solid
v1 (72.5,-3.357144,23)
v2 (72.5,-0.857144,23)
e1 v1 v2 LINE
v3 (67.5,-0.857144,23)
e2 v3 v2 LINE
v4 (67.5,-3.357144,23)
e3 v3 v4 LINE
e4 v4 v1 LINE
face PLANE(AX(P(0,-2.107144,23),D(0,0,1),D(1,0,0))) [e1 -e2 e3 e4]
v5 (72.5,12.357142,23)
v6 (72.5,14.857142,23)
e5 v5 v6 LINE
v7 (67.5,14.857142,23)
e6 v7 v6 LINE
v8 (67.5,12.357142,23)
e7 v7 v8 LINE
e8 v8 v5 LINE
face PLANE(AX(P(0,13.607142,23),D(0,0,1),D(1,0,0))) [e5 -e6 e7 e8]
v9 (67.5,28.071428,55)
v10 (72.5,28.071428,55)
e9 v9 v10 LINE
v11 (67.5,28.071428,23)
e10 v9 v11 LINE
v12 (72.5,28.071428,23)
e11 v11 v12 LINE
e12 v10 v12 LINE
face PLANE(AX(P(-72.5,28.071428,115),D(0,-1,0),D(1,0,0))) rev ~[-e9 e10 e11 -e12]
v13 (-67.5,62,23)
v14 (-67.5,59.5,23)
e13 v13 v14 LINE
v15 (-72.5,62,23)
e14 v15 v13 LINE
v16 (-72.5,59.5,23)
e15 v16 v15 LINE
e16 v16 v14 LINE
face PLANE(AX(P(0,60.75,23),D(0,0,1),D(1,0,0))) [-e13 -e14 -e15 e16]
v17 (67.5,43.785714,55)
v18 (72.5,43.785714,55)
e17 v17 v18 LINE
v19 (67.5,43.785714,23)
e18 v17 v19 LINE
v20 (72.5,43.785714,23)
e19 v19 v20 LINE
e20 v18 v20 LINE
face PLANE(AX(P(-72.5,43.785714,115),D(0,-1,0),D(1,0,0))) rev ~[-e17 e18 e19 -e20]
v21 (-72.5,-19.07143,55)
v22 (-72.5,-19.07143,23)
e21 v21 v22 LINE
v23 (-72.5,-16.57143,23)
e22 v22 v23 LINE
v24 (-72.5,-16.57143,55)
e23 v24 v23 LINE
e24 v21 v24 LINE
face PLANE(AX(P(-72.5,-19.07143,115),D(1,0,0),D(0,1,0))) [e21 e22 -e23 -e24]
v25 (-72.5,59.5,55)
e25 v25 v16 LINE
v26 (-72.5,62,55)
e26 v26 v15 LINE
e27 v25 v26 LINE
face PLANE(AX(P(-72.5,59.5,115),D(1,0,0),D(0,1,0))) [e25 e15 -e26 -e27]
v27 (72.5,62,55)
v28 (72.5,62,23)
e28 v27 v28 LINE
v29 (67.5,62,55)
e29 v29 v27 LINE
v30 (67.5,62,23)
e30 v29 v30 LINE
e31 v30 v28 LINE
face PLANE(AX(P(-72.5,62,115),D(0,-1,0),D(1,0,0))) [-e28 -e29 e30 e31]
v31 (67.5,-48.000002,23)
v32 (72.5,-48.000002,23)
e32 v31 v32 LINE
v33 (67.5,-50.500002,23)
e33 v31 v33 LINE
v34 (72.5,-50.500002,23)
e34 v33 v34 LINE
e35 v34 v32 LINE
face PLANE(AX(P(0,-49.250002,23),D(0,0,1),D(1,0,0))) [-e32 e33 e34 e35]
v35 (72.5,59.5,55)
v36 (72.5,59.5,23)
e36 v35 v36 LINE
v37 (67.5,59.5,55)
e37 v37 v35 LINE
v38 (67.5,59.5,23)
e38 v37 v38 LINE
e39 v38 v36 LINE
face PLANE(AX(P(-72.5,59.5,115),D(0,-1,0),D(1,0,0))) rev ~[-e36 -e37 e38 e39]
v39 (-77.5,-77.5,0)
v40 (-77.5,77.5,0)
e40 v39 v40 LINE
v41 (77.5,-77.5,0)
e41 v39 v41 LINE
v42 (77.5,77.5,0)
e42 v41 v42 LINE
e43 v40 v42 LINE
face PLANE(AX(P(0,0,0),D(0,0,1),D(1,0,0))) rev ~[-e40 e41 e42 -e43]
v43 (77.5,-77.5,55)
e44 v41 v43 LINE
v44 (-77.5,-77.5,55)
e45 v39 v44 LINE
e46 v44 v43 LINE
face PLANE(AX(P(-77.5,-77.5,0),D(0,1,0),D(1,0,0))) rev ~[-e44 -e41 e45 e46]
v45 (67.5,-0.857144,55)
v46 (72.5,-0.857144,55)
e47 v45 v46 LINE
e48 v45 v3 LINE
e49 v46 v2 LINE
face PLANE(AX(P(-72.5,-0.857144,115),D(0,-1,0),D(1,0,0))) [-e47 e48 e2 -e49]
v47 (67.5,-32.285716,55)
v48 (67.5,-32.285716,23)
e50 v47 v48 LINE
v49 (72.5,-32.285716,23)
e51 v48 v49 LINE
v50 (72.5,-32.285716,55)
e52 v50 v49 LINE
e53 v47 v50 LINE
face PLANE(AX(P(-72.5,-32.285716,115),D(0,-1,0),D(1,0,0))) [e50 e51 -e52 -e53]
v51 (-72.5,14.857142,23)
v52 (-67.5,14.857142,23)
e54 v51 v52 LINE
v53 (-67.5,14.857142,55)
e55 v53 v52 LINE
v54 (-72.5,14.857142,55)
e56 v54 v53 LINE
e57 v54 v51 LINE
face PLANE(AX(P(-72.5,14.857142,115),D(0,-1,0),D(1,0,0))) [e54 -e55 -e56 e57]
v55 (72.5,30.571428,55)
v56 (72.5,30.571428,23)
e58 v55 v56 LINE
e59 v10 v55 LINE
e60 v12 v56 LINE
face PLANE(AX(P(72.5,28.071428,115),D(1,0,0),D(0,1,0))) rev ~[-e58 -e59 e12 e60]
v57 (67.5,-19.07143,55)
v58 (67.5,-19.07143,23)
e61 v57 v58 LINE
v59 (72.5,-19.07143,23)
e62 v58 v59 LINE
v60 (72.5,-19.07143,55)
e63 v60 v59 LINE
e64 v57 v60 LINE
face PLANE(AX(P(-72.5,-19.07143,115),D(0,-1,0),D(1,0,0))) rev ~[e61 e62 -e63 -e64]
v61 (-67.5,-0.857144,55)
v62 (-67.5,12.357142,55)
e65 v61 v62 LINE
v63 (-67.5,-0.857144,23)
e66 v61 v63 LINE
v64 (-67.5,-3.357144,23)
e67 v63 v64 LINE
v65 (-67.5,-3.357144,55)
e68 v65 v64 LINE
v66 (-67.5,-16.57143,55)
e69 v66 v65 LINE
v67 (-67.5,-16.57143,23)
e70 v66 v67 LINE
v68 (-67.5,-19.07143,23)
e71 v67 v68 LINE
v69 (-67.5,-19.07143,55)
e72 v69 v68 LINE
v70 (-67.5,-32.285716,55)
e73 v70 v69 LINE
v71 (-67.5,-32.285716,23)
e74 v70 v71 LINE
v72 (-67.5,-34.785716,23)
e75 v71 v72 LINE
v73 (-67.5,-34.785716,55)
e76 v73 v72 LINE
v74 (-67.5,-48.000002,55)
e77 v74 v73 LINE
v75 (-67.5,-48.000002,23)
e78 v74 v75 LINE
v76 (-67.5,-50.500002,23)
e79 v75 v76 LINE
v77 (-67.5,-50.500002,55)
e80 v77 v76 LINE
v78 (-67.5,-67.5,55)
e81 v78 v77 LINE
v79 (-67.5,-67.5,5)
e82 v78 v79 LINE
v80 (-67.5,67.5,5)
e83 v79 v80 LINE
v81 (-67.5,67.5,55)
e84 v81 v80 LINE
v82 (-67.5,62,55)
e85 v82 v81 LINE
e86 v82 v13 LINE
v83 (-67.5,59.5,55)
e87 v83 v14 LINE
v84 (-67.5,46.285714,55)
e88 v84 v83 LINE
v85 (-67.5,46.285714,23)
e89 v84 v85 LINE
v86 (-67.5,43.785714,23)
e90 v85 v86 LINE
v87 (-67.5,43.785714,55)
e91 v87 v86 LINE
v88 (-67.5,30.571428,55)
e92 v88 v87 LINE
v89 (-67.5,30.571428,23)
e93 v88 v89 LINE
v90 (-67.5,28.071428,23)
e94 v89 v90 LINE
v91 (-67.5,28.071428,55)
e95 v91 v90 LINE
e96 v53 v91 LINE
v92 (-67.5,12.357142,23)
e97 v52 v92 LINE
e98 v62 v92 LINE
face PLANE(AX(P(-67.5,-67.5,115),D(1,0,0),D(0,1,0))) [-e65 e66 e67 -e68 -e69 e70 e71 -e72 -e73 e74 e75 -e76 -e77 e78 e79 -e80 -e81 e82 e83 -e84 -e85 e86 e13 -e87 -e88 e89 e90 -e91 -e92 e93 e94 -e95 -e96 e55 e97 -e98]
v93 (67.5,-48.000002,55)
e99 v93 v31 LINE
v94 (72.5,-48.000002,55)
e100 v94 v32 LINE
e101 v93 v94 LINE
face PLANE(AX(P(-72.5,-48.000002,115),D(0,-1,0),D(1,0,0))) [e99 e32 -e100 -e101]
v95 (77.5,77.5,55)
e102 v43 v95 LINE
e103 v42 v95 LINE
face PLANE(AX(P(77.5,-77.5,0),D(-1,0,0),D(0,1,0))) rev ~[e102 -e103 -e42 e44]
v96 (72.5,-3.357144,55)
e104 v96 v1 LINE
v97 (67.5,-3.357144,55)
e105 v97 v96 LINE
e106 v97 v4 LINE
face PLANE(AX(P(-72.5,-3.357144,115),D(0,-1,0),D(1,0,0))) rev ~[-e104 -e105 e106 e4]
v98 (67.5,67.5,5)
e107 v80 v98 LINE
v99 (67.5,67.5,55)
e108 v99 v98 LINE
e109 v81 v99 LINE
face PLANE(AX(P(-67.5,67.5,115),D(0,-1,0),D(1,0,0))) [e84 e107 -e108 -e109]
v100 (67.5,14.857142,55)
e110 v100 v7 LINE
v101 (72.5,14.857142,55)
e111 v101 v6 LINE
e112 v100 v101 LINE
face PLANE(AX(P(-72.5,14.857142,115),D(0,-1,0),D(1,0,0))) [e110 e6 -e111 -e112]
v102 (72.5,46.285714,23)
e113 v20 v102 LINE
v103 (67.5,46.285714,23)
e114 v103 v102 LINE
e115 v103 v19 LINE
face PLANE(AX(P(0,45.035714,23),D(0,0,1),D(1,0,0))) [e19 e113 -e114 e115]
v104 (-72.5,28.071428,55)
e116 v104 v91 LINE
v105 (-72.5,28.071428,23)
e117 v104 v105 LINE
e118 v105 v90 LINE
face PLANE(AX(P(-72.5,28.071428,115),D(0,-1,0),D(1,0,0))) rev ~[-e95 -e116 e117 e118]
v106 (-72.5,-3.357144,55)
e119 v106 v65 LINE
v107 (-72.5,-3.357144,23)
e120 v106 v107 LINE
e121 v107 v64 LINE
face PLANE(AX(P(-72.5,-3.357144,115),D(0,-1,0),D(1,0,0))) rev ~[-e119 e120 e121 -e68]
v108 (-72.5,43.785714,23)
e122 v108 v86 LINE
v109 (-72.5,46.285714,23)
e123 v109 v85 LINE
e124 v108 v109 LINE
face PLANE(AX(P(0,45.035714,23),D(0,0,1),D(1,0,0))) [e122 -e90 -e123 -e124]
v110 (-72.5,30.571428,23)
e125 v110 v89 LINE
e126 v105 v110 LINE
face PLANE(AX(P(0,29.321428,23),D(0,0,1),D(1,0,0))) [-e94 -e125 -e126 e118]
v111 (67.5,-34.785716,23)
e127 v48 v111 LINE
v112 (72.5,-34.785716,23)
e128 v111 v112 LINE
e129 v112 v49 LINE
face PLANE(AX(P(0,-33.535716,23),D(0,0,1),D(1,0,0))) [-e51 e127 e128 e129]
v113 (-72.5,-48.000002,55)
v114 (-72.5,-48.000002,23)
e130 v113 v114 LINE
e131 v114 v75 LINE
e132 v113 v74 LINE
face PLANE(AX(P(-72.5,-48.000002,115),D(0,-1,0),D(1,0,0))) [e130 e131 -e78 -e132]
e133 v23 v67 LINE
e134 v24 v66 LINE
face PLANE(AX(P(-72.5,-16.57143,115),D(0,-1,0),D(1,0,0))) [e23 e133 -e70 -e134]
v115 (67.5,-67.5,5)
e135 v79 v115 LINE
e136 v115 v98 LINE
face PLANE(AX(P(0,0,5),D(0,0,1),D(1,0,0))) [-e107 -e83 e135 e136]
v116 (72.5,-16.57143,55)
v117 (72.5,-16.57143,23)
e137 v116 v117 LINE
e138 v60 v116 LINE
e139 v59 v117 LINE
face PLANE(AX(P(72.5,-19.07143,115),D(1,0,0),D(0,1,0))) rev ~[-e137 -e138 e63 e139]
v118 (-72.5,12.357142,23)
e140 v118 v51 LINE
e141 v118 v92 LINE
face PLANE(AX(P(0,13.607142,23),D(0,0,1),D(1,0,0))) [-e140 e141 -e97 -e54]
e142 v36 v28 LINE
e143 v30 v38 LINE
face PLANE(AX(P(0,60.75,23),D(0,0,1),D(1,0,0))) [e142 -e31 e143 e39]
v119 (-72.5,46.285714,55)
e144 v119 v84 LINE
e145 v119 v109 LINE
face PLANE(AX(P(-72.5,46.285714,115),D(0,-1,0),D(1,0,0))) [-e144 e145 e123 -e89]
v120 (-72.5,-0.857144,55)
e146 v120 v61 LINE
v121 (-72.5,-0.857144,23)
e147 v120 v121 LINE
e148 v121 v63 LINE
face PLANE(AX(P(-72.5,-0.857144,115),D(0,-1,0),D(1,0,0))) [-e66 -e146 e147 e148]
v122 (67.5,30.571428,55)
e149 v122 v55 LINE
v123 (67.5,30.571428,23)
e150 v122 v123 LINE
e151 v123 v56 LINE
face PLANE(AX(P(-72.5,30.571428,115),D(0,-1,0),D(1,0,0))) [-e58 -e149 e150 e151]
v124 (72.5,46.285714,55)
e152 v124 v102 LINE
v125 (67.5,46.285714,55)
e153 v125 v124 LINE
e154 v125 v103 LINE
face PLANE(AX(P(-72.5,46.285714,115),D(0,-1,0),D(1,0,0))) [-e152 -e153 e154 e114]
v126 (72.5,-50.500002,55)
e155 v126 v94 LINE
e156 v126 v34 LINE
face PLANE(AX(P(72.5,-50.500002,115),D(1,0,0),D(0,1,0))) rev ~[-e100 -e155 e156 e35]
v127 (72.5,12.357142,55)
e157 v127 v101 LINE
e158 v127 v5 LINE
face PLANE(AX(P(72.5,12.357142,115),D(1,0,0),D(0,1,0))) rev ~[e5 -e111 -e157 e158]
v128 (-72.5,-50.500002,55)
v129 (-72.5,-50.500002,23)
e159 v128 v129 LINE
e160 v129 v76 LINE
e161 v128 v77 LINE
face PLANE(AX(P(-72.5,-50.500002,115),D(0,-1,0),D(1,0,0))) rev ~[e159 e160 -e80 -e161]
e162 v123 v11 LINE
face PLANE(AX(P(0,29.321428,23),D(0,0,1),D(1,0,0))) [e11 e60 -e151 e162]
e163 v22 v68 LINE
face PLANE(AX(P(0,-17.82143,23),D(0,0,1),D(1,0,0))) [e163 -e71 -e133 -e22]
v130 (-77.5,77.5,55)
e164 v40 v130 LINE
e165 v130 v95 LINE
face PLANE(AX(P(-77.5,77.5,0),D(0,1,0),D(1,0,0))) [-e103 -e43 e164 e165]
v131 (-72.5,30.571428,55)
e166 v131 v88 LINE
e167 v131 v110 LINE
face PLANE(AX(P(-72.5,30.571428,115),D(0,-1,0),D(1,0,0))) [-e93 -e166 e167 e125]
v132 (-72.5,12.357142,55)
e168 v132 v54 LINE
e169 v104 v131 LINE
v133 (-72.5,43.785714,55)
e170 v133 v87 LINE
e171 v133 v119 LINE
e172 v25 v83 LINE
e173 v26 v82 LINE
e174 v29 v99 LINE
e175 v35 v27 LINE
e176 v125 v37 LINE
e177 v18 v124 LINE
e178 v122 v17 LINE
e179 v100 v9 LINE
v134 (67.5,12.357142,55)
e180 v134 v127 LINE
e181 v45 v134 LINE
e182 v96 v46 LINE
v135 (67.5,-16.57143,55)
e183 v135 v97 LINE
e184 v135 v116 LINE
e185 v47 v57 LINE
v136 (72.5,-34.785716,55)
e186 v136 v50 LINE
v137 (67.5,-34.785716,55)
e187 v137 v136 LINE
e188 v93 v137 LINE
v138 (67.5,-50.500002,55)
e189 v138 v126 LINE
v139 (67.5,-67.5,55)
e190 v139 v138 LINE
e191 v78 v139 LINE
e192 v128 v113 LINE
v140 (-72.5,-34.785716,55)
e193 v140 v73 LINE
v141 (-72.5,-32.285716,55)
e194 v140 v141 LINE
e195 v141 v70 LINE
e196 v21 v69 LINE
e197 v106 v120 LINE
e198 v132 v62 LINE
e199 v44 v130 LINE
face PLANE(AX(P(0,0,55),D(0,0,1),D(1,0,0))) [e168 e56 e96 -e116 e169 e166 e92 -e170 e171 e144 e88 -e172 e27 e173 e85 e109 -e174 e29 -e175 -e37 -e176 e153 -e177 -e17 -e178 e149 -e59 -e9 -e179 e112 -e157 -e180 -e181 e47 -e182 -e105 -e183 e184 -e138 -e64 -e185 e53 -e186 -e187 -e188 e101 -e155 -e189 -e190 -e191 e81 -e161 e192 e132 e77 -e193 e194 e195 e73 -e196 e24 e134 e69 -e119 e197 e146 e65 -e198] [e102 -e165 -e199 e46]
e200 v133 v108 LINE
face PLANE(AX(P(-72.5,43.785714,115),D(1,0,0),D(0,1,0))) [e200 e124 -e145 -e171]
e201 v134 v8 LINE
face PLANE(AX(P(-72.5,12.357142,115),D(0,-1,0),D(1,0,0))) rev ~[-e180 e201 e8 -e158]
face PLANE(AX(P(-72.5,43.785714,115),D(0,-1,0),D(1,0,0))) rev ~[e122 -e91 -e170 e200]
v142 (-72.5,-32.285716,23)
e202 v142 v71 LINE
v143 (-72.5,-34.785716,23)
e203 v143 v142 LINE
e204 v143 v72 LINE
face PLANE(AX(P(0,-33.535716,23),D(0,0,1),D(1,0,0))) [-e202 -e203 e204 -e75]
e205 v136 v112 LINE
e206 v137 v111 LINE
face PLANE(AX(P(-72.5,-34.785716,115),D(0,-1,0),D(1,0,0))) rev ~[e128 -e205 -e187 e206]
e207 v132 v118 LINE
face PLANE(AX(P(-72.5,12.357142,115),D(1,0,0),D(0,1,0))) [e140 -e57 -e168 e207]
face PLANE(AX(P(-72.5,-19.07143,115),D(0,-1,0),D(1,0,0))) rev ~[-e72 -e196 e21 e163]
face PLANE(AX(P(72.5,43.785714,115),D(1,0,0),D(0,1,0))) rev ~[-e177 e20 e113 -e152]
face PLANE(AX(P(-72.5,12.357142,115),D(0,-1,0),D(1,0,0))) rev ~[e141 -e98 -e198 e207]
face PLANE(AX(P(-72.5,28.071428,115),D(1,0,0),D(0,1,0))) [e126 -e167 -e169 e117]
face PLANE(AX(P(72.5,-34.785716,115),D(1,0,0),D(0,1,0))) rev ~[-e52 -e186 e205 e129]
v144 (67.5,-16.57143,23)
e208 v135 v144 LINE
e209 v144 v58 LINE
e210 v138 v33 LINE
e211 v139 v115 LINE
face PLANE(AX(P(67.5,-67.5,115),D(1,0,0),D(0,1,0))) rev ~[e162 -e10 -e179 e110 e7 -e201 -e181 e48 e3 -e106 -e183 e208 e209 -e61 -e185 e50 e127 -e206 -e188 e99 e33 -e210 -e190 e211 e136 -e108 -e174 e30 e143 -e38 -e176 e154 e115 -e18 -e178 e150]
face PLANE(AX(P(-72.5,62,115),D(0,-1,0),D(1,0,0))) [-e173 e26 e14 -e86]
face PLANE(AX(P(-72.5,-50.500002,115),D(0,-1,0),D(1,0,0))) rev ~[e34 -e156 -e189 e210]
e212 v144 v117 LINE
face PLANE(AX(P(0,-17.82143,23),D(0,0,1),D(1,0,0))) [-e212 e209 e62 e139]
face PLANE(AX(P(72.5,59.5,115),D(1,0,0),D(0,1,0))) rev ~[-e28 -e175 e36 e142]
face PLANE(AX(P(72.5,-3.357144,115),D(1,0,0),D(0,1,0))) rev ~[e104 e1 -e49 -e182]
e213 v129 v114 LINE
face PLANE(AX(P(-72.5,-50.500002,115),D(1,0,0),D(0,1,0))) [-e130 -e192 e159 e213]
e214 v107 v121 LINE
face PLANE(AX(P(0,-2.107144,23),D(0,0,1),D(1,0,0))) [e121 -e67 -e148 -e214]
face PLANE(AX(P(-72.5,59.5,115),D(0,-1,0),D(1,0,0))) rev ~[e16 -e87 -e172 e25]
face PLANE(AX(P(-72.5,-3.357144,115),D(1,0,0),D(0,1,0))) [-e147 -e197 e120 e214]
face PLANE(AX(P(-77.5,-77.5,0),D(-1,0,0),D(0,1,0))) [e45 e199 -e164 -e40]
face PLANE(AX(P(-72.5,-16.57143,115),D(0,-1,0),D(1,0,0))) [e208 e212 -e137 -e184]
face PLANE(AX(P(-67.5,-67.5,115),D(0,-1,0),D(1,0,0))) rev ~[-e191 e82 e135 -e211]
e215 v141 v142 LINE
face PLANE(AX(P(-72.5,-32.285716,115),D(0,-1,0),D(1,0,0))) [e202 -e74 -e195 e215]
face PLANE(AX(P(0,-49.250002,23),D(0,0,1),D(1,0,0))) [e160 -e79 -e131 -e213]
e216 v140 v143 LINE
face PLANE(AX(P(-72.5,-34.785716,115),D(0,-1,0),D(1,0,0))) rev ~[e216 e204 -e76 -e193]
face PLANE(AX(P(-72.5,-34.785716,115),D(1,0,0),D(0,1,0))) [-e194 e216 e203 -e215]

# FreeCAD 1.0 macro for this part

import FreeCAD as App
import Part
import Sketcher
Q = App.Units.Quantity


def add_polygon(sketch, points):
    """Adds a closed chain of lines whose ends are joined by coincident constraints."""
    first, n = sketch.GeometryCount, len(points)
    for a, b in zip(points, points[1:] + points[:1]):
        sketch.addGeometry(Part.LineSegment(App.Vector(*a, 0), App.Vector(*b, 0)), False)
    for i in range(n):
        sketch.addConstraint(Sketcher.Constraint("Coincident", first + i, 2, first + (i + 1) % n, 1))

doc = App.newDocument("Part")
params = doc.addObject("Spreadsheet::Sheet", "Params")
for row, (alias, value) in enumerate([
    ("sketch1_width", "155 mm"),
    ("pad1_length", "55 mm"),
    ("sketch2_width", "135 mm"),
    ("pocket1_length", "110 mm"),
    ("sketch3_width", "145 mm"),
    ("sketch3_height", "2.5 mm"),
    ("pocket2_length", "92 mm"),
    ("linearpattern_pitch", "15.714286 mm"),
], start=1):
    params.set(f"A{row}", alias)
    params.set(f"B{row}", "=" + value)
    params.setAlias(f"B{row}", alias)

body = doc.addObject("PartDesign::Body", "Body")

# Sketch on XY plane
sketch1 = body.newObject("Sketcher::SketchObject", "Sketch")
sketch1.AttachmentSupport = (doc.getObject("XY_Plane"), [""])
sketch1.MapMode = "FlatFace"
add_polygon(sketch1, [(-78, 78), (-78, -78), (78, -78), (78, 78)])  # lines 0-3
sketch1.addConstraint([
    Sketcher.Constraint("Vertical", 0),
    Sketcher.Constraint("Horizontal", 1),
    Sketcher.Constraint("Vertical", 2),
    Sketcher.Constraint("Horizontal", 3),
    Sketcher.Constraint("Symmetric", 0, 2, 2, 2, -1, 1),
    Sketcher.Constraint("Equal", 3, 0),
    Sketcher.Constraint("DistanceX", 1, 1, 1, 2, Q("155 mm")),
])
sketch1.setExpression("Constraints[10]", "Params.sketch1_width")
pad1 = body.newObject("PartDesign::Pad", "Pad")
pad1.Profile = sketch1
pad1.setExpression("Length", "Params.pad1_length")

# Sketch on XY plane
sketch2 = body.newObject("Sketcher::SketchObject", "Sketch001")
sketch2.AttachmentSupport = (doc.getObject("XY_Plane"), [""])
sketch2.MapMode = "FlatFace"
sketch2.AttachmentOffset = App.Placement(App.Vector(0, 0, 115), App.Rotation())
add_polygon(sketch2, [(-68, 68), (-68, -68), (68, -68), (68, 68)])  # lines 0-3
sketch2.addConstraint([
    Sketcher.Constraint("Vertical", 0),
    Sketcher.Constraint("Horizontal", 1),
    Sketcher.Constraint("Vertical", 2),
    Sketcher.Constraint("Horizontal", 3),
    Sketcher.Constraint("Symmetric", 0, 2, 2, 2, -1, 1),
    Sketcher.Constraint("Equal", 3, 0),
    Sketcher.Constraint("DistanceX", 1, 1, 1, 2, Q("135 mm")),
])
sketch2.setExpression("Constraints[10]", "Params.sketch2_width")
pocket1 = body.newObject("PartDesign::Pocket", "Pocket")
pocket1.Profile = sketch2
pocket1.setExpression("Length", "Params.pocket1_length")

# Sketch on XY plane
sketch3 = body.newObject("Sketcher::SketchObject", "Sketch002")
sketch3.AttachmentSupport = (doc.getObject("XY_Plane"), [""])
sketch3.MapMode = "FlatFace"
sketch3.AttachmentOffset = App.Placement(App.Vector(0, 0, 115), App.Rotation())
add_polygon(sketch3, [(-72.5, 62), (-72.5, 59.5), (72.5, 59.5), (72.5, 62)])  # lines 0-3
sketch3.addConstraint([
    Sketcher.Constraint("Vertical", 0),
    Sketcher.Constraint("Horizontal", 1),
    Sketcher.Constraint("Vertical", 2),
    Sketcher.Constraint("Horizontal", 3),
    Sketcher.Constraint("DistanceX", 1, 1, 1, 2, Q("145 mm")),
    Sketcher.Constraint("DistanceY", 0, 2, 0, 1, Q("2.5 mm")),
    Sketcher.Constraint("DistanceY", -1, 1, 2, 2, Q("62 mm")),
    Sketcher.Constraint("DistanceX", 0, 2, -1, 1, Q("72.5 mm")),
])
sketch3.setExpression("Constraints[8]", "Params.sketch3_width")
sketch3.setExpression("Constraints[9]", "Params.sketch3_height")
pocket2 = body.newObject("PartDesign::Pocket", "Pocket001")
pocket2.Profile = sketch3
pocket2.setExpression("Length", "Params.pocket2_length")
doc.recompute()

linearpattern = body.newObject("PartDesign::LinearPattern", "LinearPattern")
linearpattern.Originals = [pocket2]
linearpattern.Direction = (doc.getObject("Y_Axis"), [""])
linearpattern.Mode = "offset"
linearpattern.setExpression("Offset", "Params.linearpattern_pitch")
linearpattern.Occurrences = 8
linearpattern.Reversed = True
body.Tip = linearpattern

doc.recompute()
